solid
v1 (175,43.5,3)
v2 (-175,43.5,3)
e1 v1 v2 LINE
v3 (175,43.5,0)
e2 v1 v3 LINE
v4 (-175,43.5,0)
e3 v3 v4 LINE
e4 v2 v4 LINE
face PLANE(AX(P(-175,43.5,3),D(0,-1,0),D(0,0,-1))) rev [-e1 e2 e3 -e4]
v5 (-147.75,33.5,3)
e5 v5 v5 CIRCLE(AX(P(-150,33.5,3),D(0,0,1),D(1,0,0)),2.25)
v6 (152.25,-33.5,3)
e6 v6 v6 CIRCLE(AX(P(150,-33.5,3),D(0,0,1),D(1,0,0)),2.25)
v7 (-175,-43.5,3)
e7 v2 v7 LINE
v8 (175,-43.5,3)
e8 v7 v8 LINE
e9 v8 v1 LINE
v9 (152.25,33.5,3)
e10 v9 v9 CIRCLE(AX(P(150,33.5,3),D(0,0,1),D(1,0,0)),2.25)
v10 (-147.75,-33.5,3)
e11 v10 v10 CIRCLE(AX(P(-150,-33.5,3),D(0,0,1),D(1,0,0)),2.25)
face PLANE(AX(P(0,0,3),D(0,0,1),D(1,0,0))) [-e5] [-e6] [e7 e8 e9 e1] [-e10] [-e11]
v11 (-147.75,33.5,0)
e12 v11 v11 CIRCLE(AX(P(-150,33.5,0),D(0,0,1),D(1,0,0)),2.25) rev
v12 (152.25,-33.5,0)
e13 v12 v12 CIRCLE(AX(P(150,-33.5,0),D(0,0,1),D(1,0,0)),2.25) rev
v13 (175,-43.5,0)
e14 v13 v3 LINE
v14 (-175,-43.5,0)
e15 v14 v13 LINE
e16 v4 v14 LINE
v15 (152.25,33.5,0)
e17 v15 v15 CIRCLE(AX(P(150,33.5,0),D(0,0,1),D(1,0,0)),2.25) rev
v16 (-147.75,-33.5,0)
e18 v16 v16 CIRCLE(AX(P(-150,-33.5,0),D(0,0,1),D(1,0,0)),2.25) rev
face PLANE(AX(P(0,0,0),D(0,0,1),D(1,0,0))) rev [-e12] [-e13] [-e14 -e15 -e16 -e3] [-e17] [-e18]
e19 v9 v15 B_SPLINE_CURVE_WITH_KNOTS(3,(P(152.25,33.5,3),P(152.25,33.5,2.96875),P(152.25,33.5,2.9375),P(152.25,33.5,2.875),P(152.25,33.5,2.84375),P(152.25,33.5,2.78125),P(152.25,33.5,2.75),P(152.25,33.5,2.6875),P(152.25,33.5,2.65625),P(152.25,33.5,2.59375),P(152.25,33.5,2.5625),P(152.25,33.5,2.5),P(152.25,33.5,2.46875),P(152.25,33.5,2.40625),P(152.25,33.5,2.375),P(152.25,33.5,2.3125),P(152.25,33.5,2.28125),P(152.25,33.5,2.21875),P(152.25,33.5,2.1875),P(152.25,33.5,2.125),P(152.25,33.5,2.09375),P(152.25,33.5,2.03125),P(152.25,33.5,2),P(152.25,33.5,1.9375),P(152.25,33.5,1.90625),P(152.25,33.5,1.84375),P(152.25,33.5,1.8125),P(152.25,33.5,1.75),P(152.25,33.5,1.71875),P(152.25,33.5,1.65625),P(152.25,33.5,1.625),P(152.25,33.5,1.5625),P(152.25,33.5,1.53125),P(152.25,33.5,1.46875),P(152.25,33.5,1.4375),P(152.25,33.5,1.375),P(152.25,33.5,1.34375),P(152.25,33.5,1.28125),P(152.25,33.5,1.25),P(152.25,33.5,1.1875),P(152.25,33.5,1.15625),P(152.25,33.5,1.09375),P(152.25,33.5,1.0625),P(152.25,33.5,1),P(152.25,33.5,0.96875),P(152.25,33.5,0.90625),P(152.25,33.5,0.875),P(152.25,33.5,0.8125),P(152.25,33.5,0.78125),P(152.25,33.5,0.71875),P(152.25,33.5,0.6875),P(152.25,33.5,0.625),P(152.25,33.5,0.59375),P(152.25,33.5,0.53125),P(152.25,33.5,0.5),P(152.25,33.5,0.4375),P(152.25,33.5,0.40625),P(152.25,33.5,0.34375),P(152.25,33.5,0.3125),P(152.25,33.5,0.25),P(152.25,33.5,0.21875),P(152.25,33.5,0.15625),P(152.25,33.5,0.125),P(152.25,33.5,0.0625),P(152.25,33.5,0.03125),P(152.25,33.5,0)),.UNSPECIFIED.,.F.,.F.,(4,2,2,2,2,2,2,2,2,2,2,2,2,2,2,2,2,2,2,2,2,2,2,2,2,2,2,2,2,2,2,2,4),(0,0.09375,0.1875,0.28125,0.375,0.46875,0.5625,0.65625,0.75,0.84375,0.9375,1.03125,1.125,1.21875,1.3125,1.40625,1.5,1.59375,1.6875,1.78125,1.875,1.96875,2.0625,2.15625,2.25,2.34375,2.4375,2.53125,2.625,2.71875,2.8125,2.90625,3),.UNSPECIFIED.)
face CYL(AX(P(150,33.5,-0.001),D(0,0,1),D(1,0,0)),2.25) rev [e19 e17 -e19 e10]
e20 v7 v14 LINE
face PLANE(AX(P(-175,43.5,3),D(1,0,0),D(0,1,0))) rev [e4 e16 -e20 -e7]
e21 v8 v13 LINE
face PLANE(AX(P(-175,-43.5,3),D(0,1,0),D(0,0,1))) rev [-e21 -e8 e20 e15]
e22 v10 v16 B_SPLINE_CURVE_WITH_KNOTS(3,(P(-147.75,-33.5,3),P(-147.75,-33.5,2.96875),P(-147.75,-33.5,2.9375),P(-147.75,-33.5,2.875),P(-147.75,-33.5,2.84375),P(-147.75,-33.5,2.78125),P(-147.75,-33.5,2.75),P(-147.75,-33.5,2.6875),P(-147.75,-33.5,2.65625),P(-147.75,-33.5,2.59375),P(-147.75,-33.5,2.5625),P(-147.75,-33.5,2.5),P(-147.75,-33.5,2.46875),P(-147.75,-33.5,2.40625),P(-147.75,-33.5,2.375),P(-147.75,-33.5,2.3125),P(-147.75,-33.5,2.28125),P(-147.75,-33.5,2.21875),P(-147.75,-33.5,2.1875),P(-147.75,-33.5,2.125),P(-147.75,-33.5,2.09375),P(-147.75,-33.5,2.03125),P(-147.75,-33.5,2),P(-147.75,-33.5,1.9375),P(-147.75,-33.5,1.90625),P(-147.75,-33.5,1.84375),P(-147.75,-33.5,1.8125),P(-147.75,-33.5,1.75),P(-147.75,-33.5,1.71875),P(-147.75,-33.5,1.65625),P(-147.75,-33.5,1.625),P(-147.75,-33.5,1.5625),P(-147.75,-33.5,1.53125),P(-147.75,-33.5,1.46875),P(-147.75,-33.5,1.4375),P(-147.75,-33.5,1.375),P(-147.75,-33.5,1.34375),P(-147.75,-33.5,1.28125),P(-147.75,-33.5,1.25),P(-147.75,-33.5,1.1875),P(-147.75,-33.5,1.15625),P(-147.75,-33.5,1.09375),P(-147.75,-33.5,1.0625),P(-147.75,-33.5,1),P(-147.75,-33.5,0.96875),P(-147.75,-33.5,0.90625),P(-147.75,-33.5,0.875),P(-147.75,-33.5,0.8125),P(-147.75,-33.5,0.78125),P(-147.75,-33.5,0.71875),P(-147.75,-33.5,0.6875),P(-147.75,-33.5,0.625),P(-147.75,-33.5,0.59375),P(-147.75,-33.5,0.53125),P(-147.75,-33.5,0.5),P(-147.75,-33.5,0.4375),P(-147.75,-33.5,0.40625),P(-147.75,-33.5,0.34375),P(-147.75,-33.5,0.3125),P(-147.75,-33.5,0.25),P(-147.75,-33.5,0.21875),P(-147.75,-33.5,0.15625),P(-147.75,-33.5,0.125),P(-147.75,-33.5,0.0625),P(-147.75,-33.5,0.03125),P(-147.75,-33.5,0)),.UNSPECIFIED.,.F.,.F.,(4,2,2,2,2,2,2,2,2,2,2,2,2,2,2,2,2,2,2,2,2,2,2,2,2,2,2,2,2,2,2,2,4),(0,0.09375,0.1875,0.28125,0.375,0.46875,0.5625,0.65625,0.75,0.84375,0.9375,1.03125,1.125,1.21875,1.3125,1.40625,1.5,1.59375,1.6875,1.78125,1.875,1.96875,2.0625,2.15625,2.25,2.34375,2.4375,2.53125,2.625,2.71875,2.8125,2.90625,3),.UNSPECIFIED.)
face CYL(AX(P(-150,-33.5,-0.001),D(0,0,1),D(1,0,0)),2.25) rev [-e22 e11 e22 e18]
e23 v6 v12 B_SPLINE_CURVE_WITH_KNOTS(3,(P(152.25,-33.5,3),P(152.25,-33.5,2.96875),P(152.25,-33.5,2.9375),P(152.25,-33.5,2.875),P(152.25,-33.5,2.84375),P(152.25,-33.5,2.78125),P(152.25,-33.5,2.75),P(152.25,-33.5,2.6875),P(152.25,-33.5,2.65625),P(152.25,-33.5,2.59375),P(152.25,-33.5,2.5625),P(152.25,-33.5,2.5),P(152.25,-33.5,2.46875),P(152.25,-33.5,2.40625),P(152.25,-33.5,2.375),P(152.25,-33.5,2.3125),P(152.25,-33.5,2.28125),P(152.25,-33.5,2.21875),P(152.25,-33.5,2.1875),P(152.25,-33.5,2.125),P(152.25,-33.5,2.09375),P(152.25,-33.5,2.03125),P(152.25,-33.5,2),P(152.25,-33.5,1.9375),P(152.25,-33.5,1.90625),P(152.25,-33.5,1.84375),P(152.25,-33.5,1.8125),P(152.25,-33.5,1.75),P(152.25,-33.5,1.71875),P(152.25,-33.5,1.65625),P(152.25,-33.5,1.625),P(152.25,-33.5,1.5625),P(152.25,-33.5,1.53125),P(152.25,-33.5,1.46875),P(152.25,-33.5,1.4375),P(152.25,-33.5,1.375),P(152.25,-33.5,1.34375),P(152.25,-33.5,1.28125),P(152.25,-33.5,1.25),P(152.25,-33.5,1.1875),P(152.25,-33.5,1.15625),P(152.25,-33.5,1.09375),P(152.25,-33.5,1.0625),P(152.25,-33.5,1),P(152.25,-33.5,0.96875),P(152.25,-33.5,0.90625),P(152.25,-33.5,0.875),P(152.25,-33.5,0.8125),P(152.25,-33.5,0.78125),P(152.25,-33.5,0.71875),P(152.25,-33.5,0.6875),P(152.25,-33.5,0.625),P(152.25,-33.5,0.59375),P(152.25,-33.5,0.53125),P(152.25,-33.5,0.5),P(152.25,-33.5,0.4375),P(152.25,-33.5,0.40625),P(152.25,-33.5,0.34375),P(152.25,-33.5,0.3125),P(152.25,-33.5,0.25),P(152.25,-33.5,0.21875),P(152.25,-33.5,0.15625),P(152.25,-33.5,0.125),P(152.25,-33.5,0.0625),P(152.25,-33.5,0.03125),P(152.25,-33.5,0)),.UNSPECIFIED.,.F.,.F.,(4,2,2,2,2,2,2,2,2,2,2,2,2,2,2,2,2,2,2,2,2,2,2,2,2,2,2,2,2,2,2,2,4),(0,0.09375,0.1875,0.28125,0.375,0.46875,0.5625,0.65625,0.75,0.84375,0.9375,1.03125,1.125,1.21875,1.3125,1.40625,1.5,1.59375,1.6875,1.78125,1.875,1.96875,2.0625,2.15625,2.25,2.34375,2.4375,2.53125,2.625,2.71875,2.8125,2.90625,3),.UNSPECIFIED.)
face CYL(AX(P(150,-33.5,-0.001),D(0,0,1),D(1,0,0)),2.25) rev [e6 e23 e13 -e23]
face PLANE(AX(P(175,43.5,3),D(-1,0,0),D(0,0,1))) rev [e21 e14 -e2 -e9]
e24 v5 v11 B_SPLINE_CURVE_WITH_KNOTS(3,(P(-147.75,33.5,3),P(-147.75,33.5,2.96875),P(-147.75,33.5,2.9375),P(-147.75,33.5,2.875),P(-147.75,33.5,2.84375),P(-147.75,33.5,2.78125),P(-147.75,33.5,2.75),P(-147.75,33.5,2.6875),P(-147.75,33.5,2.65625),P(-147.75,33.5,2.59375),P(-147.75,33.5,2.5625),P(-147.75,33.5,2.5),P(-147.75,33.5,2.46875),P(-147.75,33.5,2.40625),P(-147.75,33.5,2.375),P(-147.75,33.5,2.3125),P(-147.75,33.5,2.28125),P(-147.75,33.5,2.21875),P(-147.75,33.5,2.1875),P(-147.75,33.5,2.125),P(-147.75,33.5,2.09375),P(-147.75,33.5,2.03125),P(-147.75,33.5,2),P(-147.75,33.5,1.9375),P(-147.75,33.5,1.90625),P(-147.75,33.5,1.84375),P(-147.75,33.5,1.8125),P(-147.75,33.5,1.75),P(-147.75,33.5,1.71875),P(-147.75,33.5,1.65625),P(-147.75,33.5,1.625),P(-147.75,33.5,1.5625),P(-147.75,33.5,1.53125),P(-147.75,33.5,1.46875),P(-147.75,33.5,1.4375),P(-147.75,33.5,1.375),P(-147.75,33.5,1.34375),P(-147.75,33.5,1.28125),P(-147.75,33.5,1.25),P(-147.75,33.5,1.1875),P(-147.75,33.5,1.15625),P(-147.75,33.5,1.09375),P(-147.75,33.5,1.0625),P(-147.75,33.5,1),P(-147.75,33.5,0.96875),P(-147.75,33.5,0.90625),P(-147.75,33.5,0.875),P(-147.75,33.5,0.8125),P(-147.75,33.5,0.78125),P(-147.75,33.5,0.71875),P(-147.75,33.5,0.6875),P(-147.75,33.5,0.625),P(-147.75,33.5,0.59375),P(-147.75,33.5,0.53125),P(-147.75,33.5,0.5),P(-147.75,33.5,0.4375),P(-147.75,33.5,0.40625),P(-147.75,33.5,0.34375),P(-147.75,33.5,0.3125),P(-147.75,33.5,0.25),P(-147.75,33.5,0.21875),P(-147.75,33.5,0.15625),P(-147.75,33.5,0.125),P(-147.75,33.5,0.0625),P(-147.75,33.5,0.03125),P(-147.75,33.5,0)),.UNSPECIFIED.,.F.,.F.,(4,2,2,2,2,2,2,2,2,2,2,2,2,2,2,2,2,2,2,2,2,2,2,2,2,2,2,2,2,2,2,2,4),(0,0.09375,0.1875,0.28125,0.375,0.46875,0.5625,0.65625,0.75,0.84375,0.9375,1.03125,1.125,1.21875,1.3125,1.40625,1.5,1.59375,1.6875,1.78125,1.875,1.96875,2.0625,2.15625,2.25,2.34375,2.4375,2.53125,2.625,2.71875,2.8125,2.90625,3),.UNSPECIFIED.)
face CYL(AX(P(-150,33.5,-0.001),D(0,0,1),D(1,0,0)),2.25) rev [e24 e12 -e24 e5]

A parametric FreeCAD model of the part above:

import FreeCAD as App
import Part
import Sketcher

V = App.Vector


def add_polygon(sketch, points):
    """Adds a closed chain of lines whose ends are joined by coincident constraints."""
    first, n = sketch.GeometryCount, len(points)
    for a, b in zip(points, points[1:] + points[:1]):
        sketch.addGeometry(Part.LineSegment(App.Vector(*a, 0), App.Vector(*b, 0)), False)
    for i in range(n):
        sketch.addConstraint(Sketcher.Constraint("Coincident", first + i, 2, first + (i + 1) % n, 1))

doc = App.newDocument("Part")
body = doc.addObject("PartDesign::Body", "Body")

# Sketch on XY plane
sketch1 = body.newObject("Sketcher::SketchObject", "Sketch")
sketch1.AttachmentSupport = (doc.getObject("XY_Plane"), [""])
sketch1.MapMode = "FlatFace"
add_polygon(sketch1, [(-175, 44), (-175, -44), (175, -44), (175, 44)])  # lines 0-3
sketch1.addConstraint(Sketcher.Constraint("Vertical", 0))
sketch1.addConstraint(Sketcher.Constraint("Horizontal", 1))
sketch1.addConstraint(Sketcher.Constraint("Vertical", 2))
sketch1.addConstraint(Sketcher.Constraint("Horizontal", 3))
sketch1.addConstraint(Sketcher.Constraint("Symmetric", 0, 2, 2, 2, -1, 1))
sketch1.addConstraint(Sketcher.Constraint("DistanceX", 1, 1, 1, 2, 350.0))
sketch1.addConstraint(Sketcher.Constraint("DistanceY", 0, 2, 0, 1, 87.0))
pad1 = body.newObject("PartDesign::Pad", "Pad")
pad1.Profile = sketch1
pad1.Length = 3

# Sketch on XY plane
sketch2 = body.newObject("Sketcher::SketchObject", "Sketch001")
sketch2.AttachmentSupport = (doc.getObject("XY_Plane"), [""])
sketch2.MapMode = "FlatFace"
sketch2.AttachmentOffset = App.Placement(V(0, 0, 3), App.Rotation())
sketch2.addGeometry(Part.Circle(V(-150, 33.5, 0), V(0, 0, 1), 2.2), False)
sketch2.addConstraint(Sketcher.Constraint("Diameter", 0, 4.5))
sketch2.addConstraint(Sketcher.Constraint("DistanceX", 0, 3, -1, 1, 150.0))
sketch2.addConstraint(Sketcher.Constraint("DistanceY", -1, 1, 0, 3, 33.5))
pocket1 = body.newObject("PartDesign::Pocket", "Pocket")
pocket1.Profile = sketch2
pocket1.Type = "UpToFirst"

# Sketch on XY plane
sketch3 = body.newObject("Sketcher::SketchObject", "Sketch002")
sketch3.AttachmentSupport = (doc.getObject("XY_Plane"), [""])
sketch3.MapMode = "FlatFace"
sketch3.AttachmentOffset = App.Placement(V(0, 0, 3), App.Rotation())
sketch3.addGeometry(Part.Circle(V(-150, -33.5, 0), V(0, 0, 1), 2.2), False)
sketch3.addConstraint(Sketcher.Constraint("Diameter", 0, 4.5))
sketch3.addConstraint(Sketcher.Constraint("DistanceX", 0, 3, -1, 1, 150.0))
sketch3.addConstraint(Sketcher.Constraint("DistanceY", 0, 3, -1, 1, 33.5))
pocket2 = body.newObject("PartDesign::Pocket", "Pocket001")
pocket2.Profile = sketch3
pocket2.Type = "UpToFirst"

# Sketch on XY plane
sketch4 = body.newObject("Sketcher::SketchObject", "Sketch003")
sketch4.AttachmentSupport = (doc.getObject("XY_Plane"), [""])
sketch4.MapMode = "FlatFace"
sketch4.AttachmentOffset = App.Placement(V(0, 0, 3), App.Rotation())
sketch4.addGeometry(Part.Circle(V(150, 33.5, 0), V(0, 0, 1), 2.2), False)
sketch4.addConstraint(Sketcher.Constraint("Diameter", 0, 4.5))
sketch4.addConstraint(Sketcher.Constraint("DistanceX", -1, 1, 0, 3, 150.0))
sketch4.addConstraint(Sketcher.Constraint("DistanceY", -1, 1, 0, 3, 33.5))
pocket3 = body.newObject("PartDesign::Pocket", "Pocket002")
pocket3.Profile = sketch4
pocket3.Type = "UpToFirst"

# Sketch on XY plane
sketch5 = body.newObject("Sketcher::SketchObject", "Sketch004")
sketch5.AttachmentSupport = (doc.getObject("XY_Plane"), [""])
sketch5.MapMode = "FlatFace"
sketch5.AttachmentOffset = App.Placement(V(0, 0, 3), App.Rotation())
sketch5.addGeometry(Part.Circle(V(150, -33.5, 0), V(0, 0, 1), 2.2), False)
sketch5.addConstraint(Sketcher.Constraint("Diameter", 0, 4.5))
sketch5.addConstraint(Sketcher.Constraint("DistanceX", -1, 1, 0, 3, 150.0))
sketch5.addConstraint(Sketcher.Constraint("DistanceY", 0, 3, -1, 1, 33.5))
pocket4 = body.newObject("PartDesign::Pocket", "Pocket003")
pocket4.Profile = sketch5
pocket4.Type = "UpToFirst"

doc.recompute()
